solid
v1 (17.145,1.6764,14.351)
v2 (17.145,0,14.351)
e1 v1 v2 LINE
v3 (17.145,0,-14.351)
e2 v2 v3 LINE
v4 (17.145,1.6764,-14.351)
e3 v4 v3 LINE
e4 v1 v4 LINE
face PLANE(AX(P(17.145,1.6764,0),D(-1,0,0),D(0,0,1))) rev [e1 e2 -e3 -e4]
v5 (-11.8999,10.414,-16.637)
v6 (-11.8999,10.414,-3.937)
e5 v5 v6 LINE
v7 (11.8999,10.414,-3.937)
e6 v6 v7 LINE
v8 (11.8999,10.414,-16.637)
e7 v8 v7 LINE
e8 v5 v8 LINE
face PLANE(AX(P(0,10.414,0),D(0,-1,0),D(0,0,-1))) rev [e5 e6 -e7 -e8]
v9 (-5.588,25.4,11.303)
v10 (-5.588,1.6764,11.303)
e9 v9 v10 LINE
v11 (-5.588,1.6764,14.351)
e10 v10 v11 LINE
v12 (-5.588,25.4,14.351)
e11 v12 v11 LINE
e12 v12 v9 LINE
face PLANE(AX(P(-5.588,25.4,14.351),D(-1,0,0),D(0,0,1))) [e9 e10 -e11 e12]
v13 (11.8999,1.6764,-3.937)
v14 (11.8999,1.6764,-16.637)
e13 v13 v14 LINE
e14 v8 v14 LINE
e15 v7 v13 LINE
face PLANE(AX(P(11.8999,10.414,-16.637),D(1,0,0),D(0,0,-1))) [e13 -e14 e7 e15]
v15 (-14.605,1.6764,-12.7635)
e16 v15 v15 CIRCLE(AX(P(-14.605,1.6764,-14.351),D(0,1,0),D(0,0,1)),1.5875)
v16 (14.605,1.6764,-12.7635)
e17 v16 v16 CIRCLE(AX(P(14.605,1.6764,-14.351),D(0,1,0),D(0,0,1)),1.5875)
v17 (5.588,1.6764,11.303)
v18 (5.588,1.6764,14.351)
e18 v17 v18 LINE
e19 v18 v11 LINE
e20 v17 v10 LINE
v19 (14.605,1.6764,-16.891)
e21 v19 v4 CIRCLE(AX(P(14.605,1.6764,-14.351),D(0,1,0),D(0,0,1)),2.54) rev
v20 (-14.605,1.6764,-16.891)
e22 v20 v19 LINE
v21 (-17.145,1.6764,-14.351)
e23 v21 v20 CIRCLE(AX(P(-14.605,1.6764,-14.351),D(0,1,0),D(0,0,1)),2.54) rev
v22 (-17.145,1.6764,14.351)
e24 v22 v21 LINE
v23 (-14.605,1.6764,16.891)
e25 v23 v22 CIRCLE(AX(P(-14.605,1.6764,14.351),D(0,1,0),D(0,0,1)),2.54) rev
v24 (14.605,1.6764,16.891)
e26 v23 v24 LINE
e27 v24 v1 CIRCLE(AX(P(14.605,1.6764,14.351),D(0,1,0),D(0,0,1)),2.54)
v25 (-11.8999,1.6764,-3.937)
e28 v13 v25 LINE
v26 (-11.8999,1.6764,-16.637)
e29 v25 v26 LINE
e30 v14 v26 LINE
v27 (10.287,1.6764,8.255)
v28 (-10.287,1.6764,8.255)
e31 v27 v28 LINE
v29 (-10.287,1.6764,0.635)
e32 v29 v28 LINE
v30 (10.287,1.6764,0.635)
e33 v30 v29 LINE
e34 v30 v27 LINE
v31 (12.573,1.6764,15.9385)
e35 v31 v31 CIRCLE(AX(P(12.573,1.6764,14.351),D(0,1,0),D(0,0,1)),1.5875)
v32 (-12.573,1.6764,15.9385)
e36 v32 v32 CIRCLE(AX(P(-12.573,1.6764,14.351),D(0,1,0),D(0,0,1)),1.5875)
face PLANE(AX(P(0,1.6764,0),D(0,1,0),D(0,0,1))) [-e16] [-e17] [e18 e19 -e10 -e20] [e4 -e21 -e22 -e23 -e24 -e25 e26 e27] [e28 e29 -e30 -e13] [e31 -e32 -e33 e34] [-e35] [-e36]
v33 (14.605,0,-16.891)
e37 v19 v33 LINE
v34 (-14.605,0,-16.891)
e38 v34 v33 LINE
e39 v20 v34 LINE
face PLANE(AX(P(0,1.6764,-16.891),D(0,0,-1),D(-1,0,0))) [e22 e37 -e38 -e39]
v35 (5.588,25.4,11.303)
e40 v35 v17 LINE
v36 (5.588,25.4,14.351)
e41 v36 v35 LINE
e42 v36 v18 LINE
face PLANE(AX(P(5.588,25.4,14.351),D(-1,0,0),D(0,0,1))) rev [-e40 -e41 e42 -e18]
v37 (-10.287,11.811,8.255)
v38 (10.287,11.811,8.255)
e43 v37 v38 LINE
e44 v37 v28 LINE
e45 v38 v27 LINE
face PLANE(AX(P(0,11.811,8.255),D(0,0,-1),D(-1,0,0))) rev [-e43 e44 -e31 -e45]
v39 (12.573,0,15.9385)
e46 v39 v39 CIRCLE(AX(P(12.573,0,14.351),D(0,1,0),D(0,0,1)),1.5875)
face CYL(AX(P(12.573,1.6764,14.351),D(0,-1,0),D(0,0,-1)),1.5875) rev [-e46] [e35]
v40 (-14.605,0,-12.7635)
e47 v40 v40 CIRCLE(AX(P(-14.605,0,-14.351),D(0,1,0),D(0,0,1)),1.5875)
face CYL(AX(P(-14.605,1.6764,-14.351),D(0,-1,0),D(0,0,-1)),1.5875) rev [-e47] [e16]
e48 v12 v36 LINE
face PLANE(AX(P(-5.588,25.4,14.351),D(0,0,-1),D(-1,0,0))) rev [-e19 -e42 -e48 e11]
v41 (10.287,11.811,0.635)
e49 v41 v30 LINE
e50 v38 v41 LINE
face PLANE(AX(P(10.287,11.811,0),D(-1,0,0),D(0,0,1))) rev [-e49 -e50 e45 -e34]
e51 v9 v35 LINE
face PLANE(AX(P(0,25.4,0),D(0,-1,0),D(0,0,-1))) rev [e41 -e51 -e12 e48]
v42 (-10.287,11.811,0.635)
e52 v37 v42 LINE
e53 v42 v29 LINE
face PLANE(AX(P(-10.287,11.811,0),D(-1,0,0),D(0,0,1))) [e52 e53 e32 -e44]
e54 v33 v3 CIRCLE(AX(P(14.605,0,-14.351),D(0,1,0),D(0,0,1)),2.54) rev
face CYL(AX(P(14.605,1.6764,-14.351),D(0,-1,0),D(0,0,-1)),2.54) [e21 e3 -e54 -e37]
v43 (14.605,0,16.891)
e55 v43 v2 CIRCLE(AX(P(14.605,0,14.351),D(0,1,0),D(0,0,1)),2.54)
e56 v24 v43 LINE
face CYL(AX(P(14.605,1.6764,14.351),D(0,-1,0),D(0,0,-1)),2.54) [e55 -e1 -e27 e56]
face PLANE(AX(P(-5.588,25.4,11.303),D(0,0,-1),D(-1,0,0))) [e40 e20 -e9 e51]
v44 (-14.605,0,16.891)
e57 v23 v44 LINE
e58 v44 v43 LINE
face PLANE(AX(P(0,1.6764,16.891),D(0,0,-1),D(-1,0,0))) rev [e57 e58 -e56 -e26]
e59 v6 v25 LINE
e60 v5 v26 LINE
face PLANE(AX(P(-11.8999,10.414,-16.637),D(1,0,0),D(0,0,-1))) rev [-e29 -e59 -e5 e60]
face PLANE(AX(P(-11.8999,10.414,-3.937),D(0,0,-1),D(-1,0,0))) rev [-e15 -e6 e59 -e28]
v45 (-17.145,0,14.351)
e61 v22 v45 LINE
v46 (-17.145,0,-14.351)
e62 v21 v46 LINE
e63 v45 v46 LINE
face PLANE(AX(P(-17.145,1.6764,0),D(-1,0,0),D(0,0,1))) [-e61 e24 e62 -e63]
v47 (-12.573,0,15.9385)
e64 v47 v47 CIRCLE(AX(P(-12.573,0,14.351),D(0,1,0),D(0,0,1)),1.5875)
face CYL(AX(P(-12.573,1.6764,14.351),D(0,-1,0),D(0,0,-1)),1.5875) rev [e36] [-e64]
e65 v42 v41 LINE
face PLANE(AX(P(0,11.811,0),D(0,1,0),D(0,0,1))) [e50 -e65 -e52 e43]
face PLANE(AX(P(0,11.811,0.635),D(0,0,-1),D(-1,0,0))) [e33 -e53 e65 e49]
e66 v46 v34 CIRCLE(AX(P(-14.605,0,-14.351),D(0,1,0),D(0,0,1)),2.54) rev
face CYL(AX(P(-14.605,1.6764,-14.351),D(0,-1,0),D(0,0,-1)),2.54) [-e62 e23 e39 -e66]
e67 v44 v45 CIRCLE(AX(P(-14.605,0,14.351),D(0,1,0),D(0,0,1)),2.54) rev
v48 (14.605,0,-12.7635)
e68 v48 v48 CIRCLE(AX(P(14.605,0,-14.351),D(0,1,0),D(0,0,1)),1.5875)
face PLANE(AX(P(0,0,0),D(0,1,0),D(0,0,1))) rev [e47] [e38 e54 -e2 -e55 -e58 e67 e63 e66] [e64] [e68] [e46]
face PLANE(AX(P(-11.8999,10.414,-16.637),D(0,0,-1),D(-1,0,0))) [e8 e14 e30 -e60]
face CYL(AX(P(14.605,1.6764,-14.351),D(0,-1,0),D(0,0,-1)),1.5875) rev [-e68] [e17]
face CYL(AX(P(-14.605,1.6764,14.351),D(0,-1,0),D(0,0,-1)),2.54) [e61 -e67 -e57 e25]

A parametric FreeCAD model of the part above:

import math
import FreeCAD as App
import Part
import Sketcher
Q = App.Units.Quantity


def add_polygon(sketch, points):
    """Adds a closed chain of lines whose ends are joined by coincident constraints."""
    first, n = sketch.GeometryCount, len(points)
    for a, b in zip(points, points[1:] + points[:1]):
        sketch.addGeometry(Part.LineSegment(App.Vector(*a, 0), App.Vector(*b, 0)), False)
    for i in range(n):
        sketch.addConstraint(Sketcher.Constraint("Coincident", first + i, 2, first + (i + 1) % n, 1))

doc = App.newDocument("Part")
body = doc.addObject("PartDesign::Body", "Body")

# Sketch on XZ plane
sketch1 = body.newObject("Sketcher::SketchObject", "Sketch")
sketch1.AttachmentSupport = (doc.getObject("XZ_Plane"), [""])
sketch1.MapMode = "FlatFace"
sketch1.addGeometry(Part.ArcOfCircle(Part.Circle(App.Vector(-14.605, -14.351, 0), App.Vector(0, 0, 1), 2.54), math.radians(-180), math.radians(-90)), False)  # 0
sketch1.addGeometry(Part.LineSegment(App.Vector(-17.145, -14.351, 0), App.Vector(-17.145, 14.351, 0)), False)  # 1
sketch1.addGeometry(Part.ArcOfCircle(Part.Circle(App.Vector(-14.605, 14.351, 0), App.Vector(0, 0, 1), 2.54), math.radians(90), math.radians(180)), False)  # 2
sketch1.addGeometry(Part.LineSegment(App.Vector(-14.605, 16.891, 0), App.Vector(14.605, 16.891, 0)), False)  # 3
sketch1.addGeometry(Part.ArcOfCircle(Part.Circle(App.Vector(14.605, 14.351, 0), App.Vector(0, 0, 1), 2.54), math.radians(0), math.radians(90)), False)  # 4
sketch1.addGeometry(Part.LineSegment(App.Vector(17.145, 14.351, 0), App.Vector(17.145, -14.351, 0)), False)  # 5
sketch1.addGeometry(Part.ArcOfCircle(Part.Circle(App.Vector(14.605, -14.351, 0), App.Vector(0, 0, 1), 2.54), math.radians(-90), math.radians(0)), False)  # 6
sketch1.addGeometry(Part.LineSegment(App.Vector(14.605, -16.891, 0), App.Vector(-14.605, -16.891, 0)), False)  # 7
sketch1.addGeometry(Part.Circle(App.Vector(-12.573, 14.351, 0), App.Vector(0, 0, 1), 1.5875), False)  # 8
add_polygon(sketch1, [(5.588, 14.351), (-5.588, 14.351), (-5.588, 11.303), (5.588, 11.303)])  # lines 9-12
sketch1.addGeometry(Part.Circle(App.Vector(12.573, 14.351, 0), App.Vector(0, 0, 1), 1.5875), False)  # 13
add_polygon(sketch1, [(10.287, 8.255), (-10.287, 8.255), (-10.287, 0.635), (10.287, 0.635)])  # lines 14-17
sketch1.addGeometry(Part.Circle(App.Vector(-14.605, -14.351, 0), App.Vector(0, 0, 1), 1.5875), False)  # 18
add_polygon(sketch1, [(11.8999, -3.937), (-11.8999, -3.937), (-11.8999, -16.637), (11.8999, -16.637)])  # lines 19-22
sketch1.addGeometry(Part.Circle(App.Vector(14.605, -14.351, 0), App.Vector(0, 0, 1), 1.5875), False)  # 23
sketch1.addConstraint([
    Sketcher.Constraint("Tangent", 0, 1, 1, 1),
    Sketcher.Constraint("Tangent", 1, 2, 2, 2),
    Sketcher.Constraint("Tangent", 2, 1, 3, 1),
    Sketcher.Constraint("Tangent", 3, 2, 4, 2),
    Sketcher.Constraint("Tangent", 4, 1, 5, 1),
    Sketcher.Constraint("Tangent", 5, 2, 6, 2),
    Sketcher.Constraint("Tangent", 6, 1, 7, 1),
    Sketcher.Constraint("Tangent", 7, 2, 0, 2),
    Sketcher.Constraint("Vertical", 1),
    Sketcher.Constraint("Horizontal", 3),
    Sketcher.Constraint("Vertical", 5),
    Sketcher.Constraint("Horizontal", 7),
    Sketcher.Constraint("Horizontal", 9),
    Sketcher.Constraint("Vertical", 10),
    Sketcher.Constraint("Horizontal", 11),
    Sketcher.Constraint("Vertical", 12),
    Sketcher.Constraint("Horizontal", 14),
    Sketcher.Constraint("Vertical", 15),
    Sketcher.Constraint("Horizontal", 16),
    Sketcher.Constraint("Vertical", 17),
    Sketcher.Constraint("Horizontal", 19),
    Sketcher.Constraint("Vertical", 20),
    Sketcher.Constraint("Horizontal", 21),
    Sketcher.Constraint("Vertical", 22),
    Sketcher.Constraint("Coincident", 18, 3, 0, 3),
    Sketcher.Constraint("Coincident", 23, 3, 6, 3),
    Sketcher.Constraint("Equal", 0, 2),
    Sketcher.Constraint("Equal", 2, 4),
    Sketcher.Constraint("Equal", 4, 6),
    Sketcher.Constraint("Equal", 8, 13),
    Sketcher.Constraint("Equal", 13, 18),
    Sketcher.Constraint("Equal", 18, 23),
    Sketcher.Constraint("Symmetric", 0, 3, 4, 3, -1, 1),
    Sketcher.Constraint("Symmetric", 8, 3, 13, 3, -2),
    Sketcher.Constraint("Horizontal", 4, 3, 8, 3),
    Sketcher.Constraint("Horizontal", 4, 1, 9, 2),
    Sketcher.Constraint("Radius", 0, Q("0.1 in")),
    Sketcher.Constraint("Diameter", 8, Q("0.125 in")),
    Sketcher.Constraint("DistanceY", 15, 2, 15, 1, Q("0.3 in")),
    Sketcher.Constraint("DistanceY", 20, 2, 20, 1, Q("0.5 in")),
    Sketcher.Constraint("DistanceX", 3, 1, 3, 2, Q("1.15 in")),
    Sketcher.Constraint("DistanceX", 9, 2, 9, 1, Q("0.44 in")),
    Sketcher.Constraint("DistanceX", 14, 2, 14, 1, Q("0.81 in")),
    Sketcher.Constraint("DistanceY", 1, 1, 1, 2, Q("1.13 in")),
    Sketcher.Constraint("DistanceY", 10, 2, 10, 1, Q("0.12 in")),
    Sketcher.Constraint("DistanceX", 19, 2, 19, 1, Q("0.937 in")),
    Sketcher.Constraint("DistanceX", 9, 2, -1, 1, Q("0.22 in")),
    Sketcher.Constraint("DistanceX", 2, 3, 8, 3, Q("0.08 in")),
    Sketcher.Constraint("DistanceY", 14, 2, 10, 2, Q("0.12 in")),
    Sketcher.Constraint("DistanceX", 8, 3, 14, 2, Q("0.09 in")),
    Sketcher.Constraint("DistanceY", 19, 2, 15, 2, Q("0.18 in")),
    Sketcher.Constraint("DistanceX", 19, 2, -1, 1, Q("0.4685 in")),
])
pad1 = body.newObject("PartDesign::Pad", "Pad")
pad1.Profile = sketch1
pad1.Length = Q("0.066 in")
pad1.Reversed = True

# Sketch on XZ plane
sketch2 = body.newObject("Sketcher::SketchObject", "Sketch001")
sketch2.AttachmentSupport = (doc.getObject("XZ_Plane"), [""])
sketch2.MapMode = "FlatFace"
add_polygon(sketch2, [(-11.8999, -16.637), (-11.8999, -3.937), (11.8999, -3.937), (11.8999, -16.637)])  # lines 0-3
sketch2.addConstraint([
    Sketcher.Constraint("Vertical", 0),
    Sketcher.Constraint("Horizontal", 1),
    Sketcher.Constraint("Vertical", 2),
    Sketcher.Constraint("Horizontal", 3),
    Sketcher.Constraint("DistanceY", 0, 1, 0, 2, Q("0.5 in")),
    Sketcher.Constraint("DistanceX", 1, 1, 1, 2, Q("0.937 in")),
    Sketcher.Constraint("DistanceY", 0, 2, -1, 1, Q("0.155 in")),
    Sketcher.Constraint("DistanceX", 0, 2, -1, 1, Q("0.4685 in")),
])
pad2 = body.newObject("PartDesign::Pad", "Pad001")
pad2.Profile = sketch2
pad2.Length = Q("0.41 in")
pad2.Reversed = True

# Sketch on XZ plane
sketch3 = body.newObject("Sketcher::SketchObject", "Sketch002")
sketch3.AttachmentSupport = (doc.getObject("XZ_Plane"), [""])
sketch3.MapMode = "FlatFace"
add_polygon(sketch3, [(-10.287, 0.635), (-10.287, 8.255), (10.287, 8.255), (10.287, 0.635)])  # lines 0-3
sketch3.addConstraint([
    Sketcher.Constraint("Vertical", 0),
    Sketcher.Constraint("Horizontal", 1),
    Sketcher.Constraint("Vertical", 2),
    Sketcher.Constraint("Horizontal", 3),
    Sketcher.Constraint("DistanceY", 0, 1, 0, 2, Q("0.3 in")),
    Sketcher.Constraint("DistanceX", 1, 1, 1, 2, Q("0.81 in")),
    Sketcher.Constraint("DistanceX", 0, 2, -1, 1, Q("0.405 in")),
    Sketcher.Constraint("DistanceY", -1, 1, 0, 2, Q("0.325 in")),
])
pad3 = body.newObject("PartDesign::Pad", "Pad002")
pad3.Profile = sketch3
pad3.Length = Q("0.465 in")
pad3.Reversed = True

# Sketch on XZ plane
sketch4 = body.newObject("Sketcher::SketchObject", "Sketch003")
sketch4.AttachmentSupport = (doc.getObject("XZ_Plane"), [""])
sketch4.MapMode = "FlatFace"
add_polygon(sketch4, [(-5.588, 11.303), (-5.588, 14.351), (5.588, 14.351), (5.588, 11.303)])  # lines 0-3
sketch4.addConstraint([
    Sketcher.Constraint("Vertical", 0),
    Sketcher.Constraint("Horizontal", 1),
    Sketcher.Constraint("Vertical", 2),
    Sketcher.Constraint("Horizontal", 3),
    Sketcher.Constraint("DistanceX", 1, 1, 1, 2, Q("0.44 in")),
    Sketcher.Constraint("DistanceY", 0, 1, 0, 2, Q("0.12 in")),
    Sketcher.Constraint("DistanceX", 0, 2, -1, 1, Q("0.22 in")),
    Sketcher.Constraint("DistanceY", -1, 1, 0, 2, Q("0.565 in")),
])
pad4 = body.newObject("PartDesign::Pad", "Pad003")
pad4.Profile = sketch4
pad4.Length = Q("1 in")
pad4.Reversed = True

doc.recompute()
